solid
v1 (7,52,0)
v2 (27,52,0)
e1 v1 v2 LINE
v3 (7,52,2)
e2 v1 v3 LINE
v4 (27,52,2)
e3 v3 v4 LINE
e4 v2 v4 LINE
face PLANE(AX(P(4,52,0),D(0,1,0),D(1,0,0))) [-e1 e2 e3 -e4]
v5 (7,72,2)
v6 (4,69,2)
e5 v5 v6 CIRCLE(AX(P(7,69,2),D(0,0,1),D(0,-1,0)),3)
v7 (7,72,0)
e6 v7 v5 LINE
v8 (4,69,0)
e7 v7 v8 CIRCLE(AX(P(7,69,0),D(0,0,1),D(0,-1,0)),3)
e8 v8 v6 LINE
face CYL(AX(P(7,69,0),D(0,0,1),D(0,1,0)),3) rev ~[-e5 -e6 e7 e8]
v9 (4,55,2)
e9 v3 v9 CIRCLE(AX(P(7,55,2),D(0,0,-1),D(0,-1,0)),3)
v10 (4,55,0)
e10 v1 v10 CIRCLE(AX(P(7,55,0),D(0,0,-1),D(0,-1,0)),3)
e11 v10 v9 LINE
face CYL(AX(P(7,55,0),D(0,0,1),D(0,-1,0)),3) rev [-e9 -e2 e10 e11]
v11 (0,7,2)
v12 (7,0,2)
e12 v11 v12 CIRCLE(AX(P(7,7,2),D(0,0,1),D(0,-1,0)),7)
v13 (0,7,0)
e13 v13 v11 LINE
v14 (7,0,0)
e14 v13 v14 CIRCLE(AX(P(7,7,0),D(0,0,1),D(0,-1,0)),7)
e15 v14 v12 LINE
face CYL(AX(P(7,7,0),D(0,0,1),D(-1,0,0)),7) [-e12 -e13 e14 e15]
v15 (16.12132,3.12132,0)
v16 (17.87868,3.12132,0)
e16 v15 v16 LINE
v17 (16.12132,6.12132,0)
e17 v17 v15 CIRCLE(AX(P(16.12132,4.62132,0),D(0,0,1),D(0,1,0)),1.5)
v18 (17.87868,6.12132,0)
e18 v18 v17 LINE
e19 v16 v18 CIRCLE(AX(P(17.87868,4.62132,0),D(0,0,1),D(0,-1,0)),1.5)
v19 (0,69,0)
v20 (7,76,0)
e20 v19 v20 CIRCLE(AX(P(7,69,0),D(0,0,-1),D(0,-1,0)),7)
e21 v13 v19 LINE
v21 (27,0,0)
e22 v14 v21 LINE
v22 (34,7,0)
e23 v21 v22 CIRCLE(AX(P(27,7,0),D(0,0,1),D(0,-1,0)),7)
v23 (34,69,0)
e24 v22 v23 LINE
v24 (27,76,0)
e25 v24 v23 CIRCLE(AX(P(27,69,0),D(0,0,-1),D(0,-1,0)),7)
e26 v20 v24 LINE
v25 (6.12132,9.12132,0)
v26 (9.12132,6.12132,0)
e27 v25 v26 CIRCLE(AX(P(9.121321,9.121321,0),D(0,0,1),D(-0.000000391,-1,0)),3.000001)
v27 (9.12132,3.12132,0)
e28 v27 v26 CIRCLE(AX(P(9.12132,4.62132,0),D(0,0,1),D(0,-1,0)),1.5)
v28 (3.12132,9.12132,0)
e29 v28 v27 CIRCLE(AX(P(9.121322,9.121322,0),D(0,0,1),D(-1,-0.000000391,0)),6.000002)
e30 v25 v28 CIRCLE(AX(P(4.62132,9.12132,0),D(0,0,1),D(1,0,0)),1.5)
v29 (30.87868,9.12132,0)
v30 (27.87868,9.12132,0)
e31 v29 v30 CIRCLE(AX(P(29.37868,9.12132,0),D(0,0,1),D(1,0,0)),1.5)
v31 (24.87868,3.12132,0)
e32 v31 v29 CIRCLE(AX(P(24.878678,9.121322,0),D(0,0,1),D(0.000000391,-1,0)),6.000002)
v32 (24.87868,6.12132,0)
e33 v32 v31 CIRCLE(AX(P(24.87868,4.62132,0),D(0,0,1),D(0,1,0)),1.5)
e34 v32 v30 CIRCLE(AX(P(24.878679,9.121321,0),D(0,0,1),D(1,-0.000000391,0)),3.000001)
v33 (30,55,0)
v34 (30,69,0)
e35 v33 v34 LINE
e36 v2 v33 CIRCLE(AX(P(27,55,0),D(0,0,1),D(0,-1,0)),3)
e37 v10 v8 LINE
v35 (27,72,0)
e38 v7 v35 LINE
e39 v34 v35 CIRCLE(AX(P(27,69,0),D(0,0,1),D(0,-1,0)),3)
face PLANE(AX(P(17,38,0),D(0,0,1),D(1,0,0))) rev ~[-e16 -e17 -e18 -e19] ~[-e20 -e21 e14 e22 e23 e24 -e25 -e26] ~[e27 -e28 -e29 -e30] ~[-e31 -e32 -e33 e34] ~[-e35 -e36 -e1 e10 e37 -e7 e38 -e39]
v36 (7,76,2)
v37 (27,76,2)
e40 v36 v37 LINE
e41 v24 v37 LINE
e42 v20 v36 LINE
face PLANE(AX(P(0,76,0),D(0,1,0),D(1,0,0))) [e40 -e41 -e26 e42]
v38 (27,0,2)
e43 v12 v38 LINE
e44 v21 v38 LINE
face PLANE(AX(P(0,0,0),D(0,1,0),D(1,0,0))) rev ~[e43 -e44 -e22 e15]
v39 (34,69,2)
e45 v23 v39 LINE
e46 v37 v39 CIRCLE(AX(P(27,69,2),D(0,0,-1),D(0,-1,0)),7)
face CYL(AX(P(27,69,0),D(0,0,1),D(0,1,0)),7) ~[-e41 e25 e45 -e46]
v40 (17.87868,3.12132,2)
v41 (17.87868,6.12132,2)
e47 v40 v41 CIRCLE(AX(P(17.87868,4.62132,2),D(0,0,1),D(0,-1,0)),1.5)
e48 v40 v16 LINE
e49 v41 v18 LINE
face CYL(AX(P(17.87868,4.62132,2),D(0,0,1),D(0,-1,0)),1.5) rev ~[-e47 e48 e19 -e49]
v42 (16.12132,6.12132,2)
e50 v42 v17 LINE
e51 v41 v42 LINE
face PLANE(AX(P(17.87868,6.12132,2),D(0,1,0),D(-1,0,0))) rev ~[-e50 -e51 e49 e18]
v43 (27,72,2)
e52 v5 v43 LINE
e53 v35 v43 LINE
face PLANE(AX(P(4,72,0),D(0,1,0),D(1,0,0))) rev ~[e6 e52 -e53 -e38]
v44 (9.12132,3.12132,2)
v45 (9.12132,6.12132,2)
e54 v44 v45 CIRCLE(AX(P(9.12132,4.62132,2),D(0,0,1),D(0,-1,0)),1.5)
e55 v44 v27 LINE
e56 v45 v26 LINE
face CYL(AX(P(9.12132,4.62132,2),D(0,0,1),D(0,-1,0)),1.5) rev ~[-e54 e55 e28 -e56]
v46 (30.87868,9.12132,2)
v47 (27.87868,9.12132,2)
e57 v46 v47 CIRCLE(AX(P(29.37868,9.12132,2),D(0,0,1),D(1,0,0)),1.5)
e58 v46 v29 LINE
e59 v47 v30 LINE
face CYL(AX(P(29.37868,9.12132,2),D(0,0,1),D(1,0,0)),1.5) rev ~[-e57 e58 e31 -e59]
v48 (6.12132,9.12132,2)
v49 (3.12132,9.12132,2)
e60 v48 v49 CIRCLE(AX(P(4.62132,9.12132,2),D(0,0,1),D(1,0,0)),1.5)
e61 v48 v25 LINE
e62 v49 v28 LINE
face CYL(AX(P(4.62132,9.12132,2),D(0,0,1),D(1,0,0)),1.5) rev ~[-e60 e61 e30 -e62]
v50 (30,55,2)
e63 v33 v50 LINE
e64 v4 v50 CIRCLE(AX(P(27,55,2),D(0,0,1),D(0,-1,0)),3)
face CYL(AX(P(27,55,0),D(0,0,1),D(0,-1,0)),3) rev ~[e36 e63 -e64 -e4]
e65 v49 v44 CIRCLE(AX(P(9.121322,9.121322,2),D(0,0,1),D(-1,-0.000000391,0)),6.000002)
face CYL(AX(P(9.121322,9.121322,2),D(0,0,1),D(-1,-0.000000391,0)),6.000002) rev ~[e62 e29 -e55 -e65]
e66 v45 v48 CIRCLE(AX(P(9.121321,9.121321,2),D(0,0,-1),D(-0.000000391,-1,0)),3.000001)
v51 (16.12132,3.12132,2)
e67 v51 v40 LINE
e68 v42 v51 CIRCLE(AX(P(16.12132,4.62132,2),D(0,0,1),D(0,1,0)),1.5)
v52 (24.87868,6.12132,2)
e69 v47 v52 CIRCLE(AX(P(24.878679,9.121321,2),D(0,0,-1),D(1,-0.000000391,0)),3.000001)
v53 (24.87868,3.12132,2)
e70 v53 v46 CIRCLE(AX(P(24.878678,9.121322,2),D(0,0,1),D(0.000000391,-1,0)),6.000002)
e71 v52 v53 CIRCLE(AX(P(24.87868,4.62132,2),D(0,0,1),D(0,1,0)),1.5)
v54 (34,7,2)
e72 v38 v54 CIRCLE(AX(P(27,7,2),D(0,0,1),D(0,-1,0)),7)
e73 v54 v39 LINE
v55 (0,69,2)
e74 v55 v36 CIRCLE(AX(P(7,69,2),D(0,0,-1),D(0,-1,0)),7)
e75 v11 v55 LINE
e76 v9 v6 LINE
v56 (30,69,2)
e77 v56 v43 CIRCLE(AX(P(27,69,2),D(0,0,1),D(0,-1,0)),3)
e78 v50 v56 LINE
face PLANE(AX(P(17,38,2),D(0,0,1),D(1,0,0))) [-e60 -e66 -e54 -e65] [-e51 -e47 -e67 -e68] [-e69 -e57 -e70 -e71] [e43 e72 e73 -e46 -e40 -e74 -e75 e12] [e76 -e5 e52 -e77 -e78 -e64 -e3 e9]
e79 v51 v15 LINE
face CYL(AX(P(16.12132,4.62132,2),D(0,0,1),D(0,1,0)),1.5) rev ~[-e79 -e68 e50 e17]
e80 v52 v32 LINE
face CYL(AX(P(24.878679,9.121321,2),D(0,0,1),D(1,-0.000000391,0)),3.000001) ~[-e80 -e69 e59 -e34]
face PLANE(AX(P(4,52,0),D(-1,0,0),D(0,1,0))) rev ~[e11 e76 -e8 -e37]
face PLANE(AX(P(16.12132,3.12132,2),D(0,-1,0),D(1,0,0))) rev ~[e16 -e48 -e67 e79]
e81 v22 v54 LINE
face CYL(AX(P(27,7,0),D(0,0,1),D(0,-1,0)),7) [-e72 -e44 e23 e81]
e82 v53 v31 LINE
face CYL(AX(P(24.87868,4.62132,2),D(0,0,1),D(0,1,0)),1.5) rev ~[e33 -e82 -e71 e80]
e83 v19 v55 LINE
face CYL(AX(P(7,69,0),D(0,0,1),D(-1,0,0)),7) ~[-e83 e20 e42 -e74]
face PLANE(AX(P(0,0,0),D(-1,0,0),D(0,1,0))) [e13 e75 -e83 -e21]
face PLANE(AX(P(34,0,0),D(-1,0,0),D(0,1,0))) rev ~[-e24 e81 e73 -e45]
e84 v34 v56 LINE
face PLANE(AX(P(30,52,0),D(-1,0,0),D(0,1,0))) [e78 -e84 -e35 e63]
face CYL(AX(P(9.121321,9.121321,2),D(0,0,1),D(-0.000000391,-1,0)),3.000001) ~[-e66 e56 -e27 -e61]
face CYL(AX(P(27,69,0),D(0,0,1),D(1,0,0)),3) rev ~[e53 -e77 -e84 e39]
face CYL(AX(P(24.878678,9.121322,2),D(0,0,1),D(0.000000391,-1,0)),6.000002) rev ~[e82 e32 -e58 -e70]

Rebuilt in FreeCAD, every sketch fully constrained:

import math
import FreeCAD as App
import Part
import Sketcher
from FreeCAD import Vector
Q = App.Units.Quantity


def edges_at(feature, points):
    """Names of the edges that pass closest to the given points."""
    edges = feature.Shape.Edges
    near = lambda p: min(range(len(edges)), key=lambda i: edges[i].distToShape(Part.Vertex(*p))[0])
    return sorted({f"Edge{near(p) + 1}" for p in points})

doc = App.newDocument("Part")
params = doc.addObject("Spreadsheet::Sheet", "Params")
for row, (alias, value) in enumerate([
    ("sketch1_width", "34 mm"),
    ("sketch1_width2", "26 mm"),
    ("sketch1_height", "76 mm"),
    ("sketch1_height2", "20 mm"),
    ("pad1_length", "2 mm"),
    ("fillet_radius", "3 mm"),
    ("fillet2_radius", "7 mm"),
    ("sketch2_radius", "3.000001 mm"),
    ("sketch2_radius2", "1.5 mm"),
    ("pocket1_length", "25 mm"),
], start=1):
    params.set(f"A{row}", alias)
    params.set(f"B{row}", "=" + value)
    params.setAlias(f"B{row}", alias)

body = doc.addObject("PartDesign::Body", "Body")

sketch1 = doc.addObject("Sketcher::SketchObject", "Sketch")
body.addObject(sketch1)
sketch1.AttachmentSupport = (doc.XY_Plane, [""])
sketch1.MapMode = "FlatFace"
sketch1.addGeometry([
    Part.LineSegment(Vector(0, 76, 0), Vector(0, 0, 0)),
    Part.LineSegment(Vector(0, 0, 0), Vector(34, 0, 0)),
    Part.LineSegment(Vector(34, 0, 0), Vector(34, 76, 0)),
    Part.LineSegment(Vector(34, 76, 0), Vector(0, 76, 0)),
    Part.LineSegment(Vector(30, 52, 0), Vector(4, 52, 0)),
    Part.LineSegment(Vector(4, 52, 0), Vector(4, 72, 0)),
    Part.LineSegment(Vector(4, 72, 0), Vector(30, 72, 0)),
    Part.LineSegment(Vector(30, 72, 0), Vector(30, 52, 0)),
], False)
sketch1.addConstraint([
    Sketcher.Constraint("Coincident", 0, 2, 1, 1),
    Sketcher.Constraint("Coincident", 1, 2, 2, 1),
    Sketcher.Constraint("Coincident", 2, 2, 3, 1),
    Sketcher.Constraint("Coincident", 3, 2, 0, 1),
    Sketcher.Constraint("Coincident", 4, 2, 5, 1),
    Sketcher.Constraint("Coincident", 5, 2, 6, 1),
    Sketcher.Constraint("Coincident", 6, 2, 7, 1),
    Sketcher.Constraint("Coincident", 7, 2, 4, 1),
    Sketcher.Constraint("Vertical", 0),
    Sketcher.Constraint("Horizontal", 1),
    Sketcher.Constraint("Vertical", 2),
    Sketcher.Constraint("Horizontal", 3),
    Sketcher.Constraint("Horizontal", 4),
    Sketcher.Constraint("Vertical", 5),
    Sketcher.Constraint("Horizontal", 6),
    Sketcher.Constraint("Vertical", 7),
    Sketcher.Constraint("Coincident", 0, 2, -1, 1),
    Sketcher.Constraint("DistanceX", 1, 1, 1, 2, Q("34 mm")),
    Sketcher.Constraint("DistanceX", 4, 2, 4, 1, Q("26 mm")),
    Sketcher.Constraint("DistanceY", 0, 2, 0, 1, Q("76 mm")),
    Sketcher.Constraint("DistanceY", 5, 1, 5, 2, Q("20 mm")),
    Sketcher.Constraint("DistanceX", -1, 1, 4, 2, Q("4 mm")),
    Sketcher.Constraint("DistanceY", -1, 1, 4, 2, Q("52 mm")),
])
sketch1.setExpression("Constraints[17]", "Params.sketch1_width")
sketch1.setExpression("Constraints[18]", "Params.sketch1_width2")
sketch1.setExpression("Constraints[19]", "Params.sketch1_height")
sketch1.setExpression("Constraints[20]", "Params.sketch1_height2")
pad1 = doc.addObject("PartDesign::Pad", "Pad")
body.addObject(pad1)
pad1.Profile = sketch1
pad1.setExpression("Length", "Params.pad1_length")
doc.recompute()

fillet = doc.addObject("PartDesign::Fillet", "Fillet")
body.addObject(fillet)
fillet.Base = (pad1, edges_at(pad1, [
    (4, 72, 1),
    (30, 72, 1),
    (30, 52, 1),
    (4, 52, 1),
]))
fillet.setExpression("Radius", "Params.fillet_radius")
doc.recompute()

fillet2 = doc.addObject("PartDesign::Fillet", "Fillet001")
body.addObject(fillet2)
fillet2.Base = (fillet, edges_at(fillet, [
    (34, 76, 1),
    (0, 76, 1),
    (0, 0, 1),
    (34, 0, 1),
]))
fillet2.setExpression("Radius", "Params.fillet2_radius")

sketch2 = doc.addObject("Sketcher::SketchObject", "Sketch001")
body.addObject(sketch2)
sketch2.AttachmentSupport = (doc.XY_Plane, [""])
sketch2.MapMode = "FlatFace"
sketch2.AttachmentOffset = App.Placement(Vector(0, 0, 2), App.Rotation())
sketch2.addGeometry([
    Part.ArcOfCircle(Part.Circle(Vector(4.6, 9.1, 0), Vector(0, 0, 1), 1.5), math.radians(0), math.radians(180)),
    Part.ArcOfCircle(Part.Circle(Vector(9.1, 9.1, 0), Vector(0, 0, 1), 6), math.radians(-180), math.radians(-90)),
    Part.ArcOfCircle(Part.Circle(Vector(9.1, 4.6, 0), Vector(0, 0, 1), 1.5), math.radians(-90), math.radians(90)),
    Part.ArcOfCircle(Part.Circle(Vector(9.1, 9.1, 0), Vector(0, 0, 1), 3), math.radians(-180), math.radians(-90)),
    Part.LineSegment(Vector(17.9, 6.1, 0), Vector(16.1, 6.1, 0)),
    Part.ArcOfCircle(Part.Circle(Vector(16.1, 4.6, 0), Vector(0, 0, 1), 1.5), math.radians(90), math.radians(270)),
    Part.LineSegment(Vector(16.1, 3.1, 0), Vector(17.9, 3.1, 0)),
    Part.ArcOfCircle(Part.Circle(Vector(17.9, 4.6, 0), Vector(0, 0, 1), 1.5), math.radians(-90), math.radians(90)),
    Part.ArcOfCircle(Part.Circle(Vector(24.9, 9.1, 0), Vector(0, 0, 1), 3), math.radians(-90), math.radians(0)),
    Part.ArcOfCircle(Part.Circle(Vector(24.9, 4.6, 0), Vector(0, 0, 1), 1.5), math.radians(90), math.radians(270)),
    Part.ArcOfCircle(Part.Circle(Vector(24.9, 9.1, 0), Vector(0, 0, 1), 6), math.radians(-90), math.radians(0)),
    Part.ArcOfCircle(Part.Circle(Vector(29.4, 9.1, 0), Vector(0, 0, 1), 1.5), math.radians(0), math.radians(180)),
], False)
sketch2.addConstraint([
    Sketcher.Constraint("Tangent", 0, 2, 1, 1),
    Sketcher.Constraint("Tangent", 1, 2, 2, 1),
    Sketcher.Constraint("Tangent", 2, 2, 3, 2),
    Sketcher.Constraint("Tangent", 3, 1, 0, 1),
    Sketcher.Constraint("Tangent", 4, 2, 5, 1),
    Sketcher.Constraint("Tangent", 5, 2, 6, 1),
    Sketcher.Constraint("Tangent", 6, 2, 7, 1),
    Sketcher.Constraint("Tangent", 7, 2, 4, 1),
    Sketcher.Constraint("Tangent", 8, 1, 9, 1),
    Sketcher.Constraint("Tangent", 9, 2, 10, 1),
    Sketcher.Constraint("Tangent", 10, 2, 11, 1),
    Sketcher.Constraint("Tangent", 11, 2, 8, 2),
    Sketcher.Constraint("Horizontal", 4),
    Sketcher.Constraint("Horizontal", 6),
    Sketcher.Constraint("Coincident", 3, 3, 1, 3),
    Sketcher.Constraint("Coincident", 10, 3, 8, 3),
    Sketcher.Constraint("Equal", 2, 5),
    Sketcher.Constraint("Equal", 3, 8),
    Sketcher.Constraint("Equal", 7, 9),
    Sketcher.Constraint("Horizontal", 0, 3, 3, 3),
    Sketcher.Constraint("Horizontal", 2, 3, 5, 3),
    Sketcher.Constraint("Horizontal", 3, 3, 8, 3),
    Sketcher.Constraint("Horizontal", 8, 3, 11, 3),
    Sketcher.Constraint("Vertical", 2, 3, 3, 3),
    Sketcher.Constraint("Vertical", 8, 3, 9, 3),
    Sketcher.Constraint("Radius", 3, Q("3.000001 mm")),
    Sketcher.Constraint("Radius", 0, Q("1.5 mm")),
    Sketcher.Constraint("DistanceX", 2, 3, 5, 3, Q("7 mm")),
    Sketcher.Constraint("DistanceX", 7, 3, 8, 3, Q("6.999999 mm")),
    Sketcher.Constraint("DistanceX", 4, 2, 4, 1, Q("1.75736 mm")),
    Sketcher.Constraint("DistanceX", -1, 1, 0, 3, Q("4.62132 mm")),
    Sketcher.Constraint("DistanceY", -1, 1, 0, 3, Q("9.12132 mm")),
])
sketch2.setExpression("Constraints[25]", "Params.sketch2_radius")
sketch2.setExpression("Constraints[26]", "Params.sketch2_radius2")
pocket1 = doc.addObject("PartDesign::Pocket", "Pocket")
body.addObject(pocket1)
pocket1.Profile = sketch2
pocket1.setExpression("Length", "Params.pocket1_length")

doc.recompute()
